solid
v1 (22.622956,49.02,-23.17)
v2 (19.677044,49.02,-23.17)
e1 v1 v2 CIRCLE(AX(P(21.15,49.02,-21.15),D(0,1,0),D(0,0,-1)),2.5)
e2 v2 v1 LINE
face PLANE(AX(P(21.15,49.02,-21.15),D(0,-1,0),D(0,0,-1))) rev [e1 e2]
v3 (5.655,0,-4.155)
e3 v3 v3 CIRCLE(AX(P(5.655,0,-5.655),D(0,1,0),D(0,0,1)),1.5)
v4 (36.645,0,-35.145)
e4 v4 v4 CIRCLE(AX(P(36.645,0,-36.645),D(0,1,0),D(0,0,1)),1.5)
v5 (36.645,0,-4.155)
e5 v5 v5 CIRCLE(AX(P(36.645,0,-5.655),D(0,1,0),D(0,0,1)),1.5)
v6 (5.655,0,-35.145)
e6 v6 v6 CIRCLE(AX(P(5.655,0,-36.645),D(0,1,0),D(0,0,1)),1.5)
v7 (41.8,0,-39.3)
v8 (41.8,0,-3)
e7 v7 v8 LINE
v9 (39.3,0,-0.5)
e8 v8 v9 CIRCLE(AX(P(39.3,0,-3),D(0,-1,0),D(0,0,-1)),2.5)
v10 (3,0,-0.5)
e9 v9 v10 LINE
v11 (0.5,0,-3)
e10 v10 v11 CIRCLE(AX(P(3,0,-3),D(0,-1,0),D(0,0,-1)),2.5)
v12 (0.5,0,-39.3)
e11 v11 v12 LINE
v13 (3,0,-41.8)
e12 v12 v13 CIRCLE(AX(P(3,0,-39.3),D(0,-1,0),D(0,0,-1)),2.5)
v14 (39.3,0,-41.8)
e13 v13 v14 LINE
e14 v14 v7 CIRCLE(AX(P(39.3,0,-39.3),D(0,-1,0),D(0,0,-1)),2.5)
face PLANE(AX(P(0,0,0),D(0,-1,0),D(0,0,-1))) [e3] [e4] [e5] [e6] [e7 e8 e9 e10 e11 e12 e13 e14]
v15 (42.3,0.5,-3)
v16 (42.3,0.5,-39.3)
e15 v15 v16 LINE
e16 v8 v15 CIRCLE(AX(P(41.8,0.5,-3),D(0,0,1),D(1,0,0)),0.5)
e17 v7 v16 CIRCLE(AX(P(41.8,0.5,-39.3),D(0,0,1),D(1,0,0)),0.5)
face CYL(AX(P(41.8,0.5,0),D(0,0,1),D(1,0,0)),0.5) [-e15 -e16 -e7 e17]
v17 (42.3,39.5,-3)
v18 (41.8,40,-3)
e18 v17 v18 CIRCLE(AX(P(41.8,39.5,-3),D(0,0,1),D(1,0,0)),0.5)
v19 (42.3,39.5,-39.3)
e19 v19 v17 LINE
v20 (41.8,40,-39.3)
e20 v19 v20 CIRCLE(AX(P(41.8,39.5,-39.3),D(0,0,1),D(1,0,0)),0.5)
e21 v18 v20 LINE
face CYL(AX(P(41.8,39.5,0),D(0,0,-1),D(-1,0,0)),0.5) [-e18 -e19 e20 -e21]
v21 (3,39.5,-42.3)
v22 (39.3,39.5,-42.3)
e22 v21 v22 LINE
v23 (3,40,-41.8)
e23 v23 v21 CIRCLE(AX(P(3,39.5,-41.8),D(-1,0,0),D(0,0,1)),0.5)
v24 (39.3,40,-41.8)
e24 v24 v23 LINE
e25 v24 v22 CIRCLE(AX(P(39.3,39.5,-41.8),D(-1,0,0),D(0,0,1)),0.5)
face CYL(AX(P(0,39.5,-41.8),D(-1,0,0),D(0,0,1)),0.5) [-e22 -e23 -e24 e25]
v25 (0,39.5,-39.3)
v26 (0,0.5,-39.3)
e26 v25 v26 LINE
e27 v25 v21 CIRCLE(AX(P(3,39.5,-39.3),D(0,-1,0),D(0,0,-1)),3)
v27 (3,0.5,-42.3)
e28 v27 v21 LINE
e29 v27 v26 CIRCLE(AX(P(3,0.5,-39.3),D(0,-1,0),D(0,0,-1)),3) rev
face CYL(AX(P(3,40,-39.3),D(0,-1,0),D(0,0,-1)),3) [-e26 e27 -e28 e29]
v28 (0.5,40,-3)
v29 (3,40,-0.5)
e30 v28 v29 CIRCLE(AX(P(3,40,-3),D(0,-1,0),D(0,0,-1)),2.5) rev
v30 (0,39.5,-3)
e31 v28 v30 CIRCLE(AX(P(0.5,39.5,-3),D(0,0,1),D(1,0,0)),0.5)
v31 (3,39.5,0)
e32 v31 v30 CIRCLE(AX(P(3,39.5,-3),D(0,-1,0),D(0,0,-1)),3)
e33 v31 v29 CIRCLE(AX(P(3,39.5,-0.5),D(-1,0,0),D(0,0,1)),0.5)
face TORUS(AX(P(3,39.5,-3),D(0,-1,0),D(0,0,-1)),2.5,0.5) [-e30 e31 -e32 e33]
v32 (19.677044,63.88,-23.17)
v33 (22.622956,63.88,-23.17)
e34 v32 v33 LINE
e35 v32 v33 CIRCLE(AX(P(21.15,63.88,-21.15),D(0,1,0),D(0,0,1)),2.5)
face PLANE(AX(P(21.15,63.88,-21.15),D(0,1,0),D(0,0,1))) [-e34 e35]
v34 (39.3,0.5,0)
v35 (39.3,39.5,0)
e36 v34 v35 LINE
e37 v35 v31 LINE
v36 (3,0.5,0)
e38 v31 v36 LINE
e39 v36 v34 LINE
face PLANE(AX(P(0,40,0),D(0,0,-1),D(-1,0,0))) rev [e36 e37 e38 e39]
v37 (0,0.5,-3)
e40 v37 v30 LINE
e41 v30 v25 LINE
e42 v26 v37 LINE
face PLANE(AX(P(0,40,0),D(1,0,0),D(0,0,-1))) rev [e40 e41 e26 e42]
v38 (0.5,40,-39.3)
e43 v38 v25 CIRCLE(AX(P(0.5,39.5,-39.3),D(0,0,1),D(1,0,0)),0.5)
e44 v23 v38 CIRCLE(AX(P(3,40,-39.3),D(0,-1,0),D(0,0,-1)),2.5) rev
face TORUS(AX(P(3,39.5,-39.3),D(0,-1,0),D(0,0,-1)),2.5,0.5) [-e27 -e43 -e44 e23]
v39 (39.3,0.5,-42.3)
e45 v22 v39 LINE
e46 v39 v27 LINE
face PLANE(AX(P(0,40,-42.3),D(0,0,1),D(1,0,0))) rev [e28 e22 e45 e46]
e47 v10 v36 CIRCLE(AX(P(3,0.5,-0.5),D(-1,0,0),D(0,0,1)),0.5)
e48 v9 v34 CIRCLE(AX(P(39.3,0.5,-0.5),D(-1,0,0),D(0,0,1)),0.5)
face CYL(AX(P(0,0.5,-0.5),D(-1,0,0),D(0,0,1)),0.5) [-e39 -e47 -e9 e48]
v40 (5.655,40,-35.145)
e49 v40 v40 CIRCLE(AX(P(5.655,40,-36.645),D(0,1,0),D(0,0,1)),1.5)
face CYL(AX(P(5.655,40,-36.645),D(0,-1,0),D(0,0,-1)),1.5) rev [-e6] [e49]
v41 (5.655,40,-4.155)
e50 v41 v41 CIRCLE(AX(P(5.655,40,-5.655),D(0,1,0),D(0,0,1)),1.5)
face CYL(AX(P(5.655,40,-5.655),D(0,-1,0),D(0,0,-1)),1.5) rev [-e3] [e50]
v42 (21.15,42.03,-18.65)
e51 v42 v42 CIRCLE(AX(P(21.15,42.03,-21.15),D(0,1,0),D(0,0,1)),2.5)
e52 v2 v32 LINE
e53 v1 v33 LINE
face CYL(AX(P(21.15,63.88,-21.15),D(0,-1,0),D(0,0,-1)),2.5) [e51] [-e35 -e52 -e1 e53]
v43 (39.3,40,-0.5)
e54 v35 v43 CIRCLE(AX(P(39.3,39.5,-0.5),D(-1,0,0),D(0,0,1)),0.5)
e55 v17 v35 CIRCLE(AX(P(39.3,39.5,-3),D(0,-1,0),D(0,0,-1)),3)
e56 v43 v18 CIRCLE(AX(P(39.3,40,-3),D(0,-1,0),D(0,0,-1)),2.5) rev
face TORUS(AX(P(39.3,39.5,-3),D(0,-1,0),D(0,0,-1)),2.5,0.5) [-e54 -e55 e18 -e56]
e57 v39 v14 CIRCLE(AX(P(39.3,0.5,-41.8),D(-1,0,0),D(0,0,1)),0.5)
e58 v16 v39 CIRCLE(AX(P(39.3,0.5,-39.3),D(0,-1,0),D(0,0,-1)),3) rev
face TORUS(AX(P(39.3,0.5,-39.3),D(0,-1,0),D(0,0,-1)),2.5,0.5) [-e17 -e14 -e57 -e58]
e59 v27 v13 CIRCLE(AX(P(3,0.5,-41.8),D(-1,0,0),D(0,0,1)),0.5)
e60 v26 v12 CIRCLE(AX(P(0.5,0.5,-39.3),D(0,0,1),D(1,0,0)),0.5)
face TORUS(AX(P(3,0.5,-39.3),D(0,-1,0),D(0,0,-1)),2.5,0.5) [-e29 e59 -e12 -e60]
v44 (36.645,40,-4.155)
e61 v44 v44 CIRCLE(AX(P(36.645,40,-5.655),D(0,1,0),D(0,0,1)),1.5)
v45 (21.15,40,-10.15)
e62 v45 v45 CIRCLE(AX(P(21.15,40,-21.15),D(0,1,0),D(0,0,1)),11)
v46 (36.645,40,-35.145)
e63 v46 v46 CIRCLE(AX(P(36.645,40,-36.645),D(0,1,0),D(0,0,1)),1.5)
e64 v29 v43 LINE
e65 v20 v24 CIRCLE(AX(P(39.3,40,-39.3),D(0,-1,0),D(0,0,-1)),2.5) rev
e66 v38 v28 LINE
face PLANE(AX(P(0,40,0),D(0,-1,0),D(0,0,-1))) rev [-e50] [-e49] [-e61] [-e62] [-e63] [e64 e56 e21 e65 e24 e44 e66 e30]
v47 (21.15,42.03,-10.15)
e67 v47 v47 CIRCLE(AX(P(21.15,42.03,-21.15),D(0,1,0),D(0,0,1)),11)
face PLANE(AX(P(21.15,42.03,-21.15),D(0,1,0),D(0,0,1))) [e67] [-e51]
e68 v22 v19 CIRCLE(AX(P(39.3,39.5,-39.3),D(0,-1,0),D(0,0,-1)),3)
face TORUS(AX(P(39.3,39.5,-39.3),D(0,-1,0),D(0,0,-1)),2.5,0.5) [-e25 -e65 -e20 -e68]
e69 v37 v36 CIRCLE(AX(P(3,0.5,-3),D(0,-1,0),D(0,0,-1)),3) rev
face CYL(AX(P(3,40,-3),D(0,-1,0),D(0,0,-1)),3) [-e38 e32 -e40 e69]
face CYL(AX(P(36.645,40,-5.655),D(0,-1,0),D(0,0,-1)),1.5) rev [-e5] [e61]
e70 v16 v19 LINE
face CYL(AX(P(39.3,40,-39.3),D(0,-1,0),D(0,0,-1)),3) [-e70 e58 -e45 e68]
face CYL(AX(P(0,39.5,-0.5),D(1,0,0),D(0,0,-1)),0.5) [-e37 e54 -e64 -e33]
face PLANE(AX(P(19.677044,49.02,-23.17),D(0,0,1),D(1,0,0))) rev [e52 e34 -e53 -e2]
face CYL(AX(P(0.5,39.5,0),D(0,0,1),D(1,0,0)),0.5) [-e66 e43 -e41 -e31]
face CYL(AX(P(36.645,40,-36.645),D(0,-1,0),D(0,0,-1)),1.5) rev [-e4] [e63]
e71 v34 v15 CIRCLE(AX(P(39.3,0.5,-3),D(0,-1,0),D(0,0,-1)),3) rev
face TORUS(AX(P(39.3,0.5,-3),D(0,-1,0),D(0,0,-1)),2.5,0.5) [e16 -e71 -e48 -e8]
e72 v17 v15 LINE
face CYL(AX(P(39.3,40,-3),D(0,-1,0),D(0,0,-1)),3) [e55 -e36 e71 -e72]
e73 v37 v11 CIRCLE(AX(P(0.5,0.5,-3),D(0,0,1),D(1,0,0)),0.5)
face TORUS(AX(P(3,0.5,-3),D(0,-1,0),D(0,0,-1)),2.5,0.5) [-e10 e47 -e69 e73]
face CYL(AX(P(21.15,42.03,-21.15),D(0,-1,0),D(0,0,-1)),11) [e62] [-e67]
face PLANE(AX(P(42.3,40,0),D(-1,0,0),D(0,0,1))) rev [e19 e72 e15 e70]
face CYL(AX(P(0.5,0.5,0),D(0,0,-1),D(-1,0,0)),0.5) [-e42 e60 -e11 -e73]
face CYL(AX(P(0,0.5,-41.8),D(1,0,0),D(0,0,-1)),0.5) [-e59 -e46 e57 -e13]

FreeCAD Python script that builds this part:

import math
import FreeCAD as App
import Part
import Sketcher
Q = App.Units.Quantity


def edges_at(feature, points):
    """Names of the edges that pass closest to the given points."""
    edges = feature.Shape.Edges
    near = lambda p: min(range(len(edges)), key=lambda i: edges[i].distToShape(Part.Vertex(*p))[0])
    return sorted({f"Edge{near(p) + 1}" for p in points})


def add_polygon(sketch, points):
    """Adds a closed chain of lines whose ends are joined by coincident constraints."""
    first, n = sketch.GeometryCount, len(points)
    for a, b in zip(points, points[1:] + points[:1]):
        sketch.addGeometry(Part.LineSegment(App.Vector(*a, 0), App.Vector(*b, 0)), False)
    for i in range(n):
        sketch.addConstraint(Sketcher.Constraint("Coincident", first + i, 2, first + (i + 1) % n, 1))

doc = App.newDocument("Part")
body = doc.addObject("PartDesign::Body", "Body")

# Sketch on XZ plane
sketch1 = doc.addObject("Sketcher::SketchObject", "Sketch")
body.addObject(sketch1)
sketch1.AttachmentSupport = (doc.XZ_Plane, [""])
sketch1.MapMode = "FlatFace"
add_polygon(sketch1, [(0, -42.3), (0, 0), (42.3, 0), (42.3, -42.3)])  # lines 0-3
sketch1.addGeometry(Part.Circle(App.Vector(5.655, -5.655, 0), App.Vector(0, 0, 1), 1.5), False)  # 4
sketch1.addGeometry(Part.Circle(App.Vector(36.645, -5.655, 0), App.Vector(0, 0, 1), 1.5), False)  # 5
sketch1.addGeometry(Part.Circle(App.Vector(5.655, -36.645, 0), App.Vector(0, 0, 1), 1.5), False)  # 6
sketch1.addGeometry(Part.Circle(App.Vector(36.645, -36.645, 0), App.Vector(0, 0, 1), 1.5), False)  # 7
sketch1.addConstraint([
    Sketcher.Constraint("Vertical", 0),
    Sketcher.Constraint("Horizontal", 1),
    Sketcher.Constraint("Vertical", 2),
    Sketcher.Constraint("Horizontal", 3),
    Sketcher.Constraint("Coincident", 0, 2, -1, 1),
    Sketcher.Constraint("Equal", 4, 5),
    Sketcher.Constraint("Equal", 5, 6),
    Sketcher.Constraint("Equal", 6, 7),
    Sketcher.Constraint("Horizontal", 4, 3, 5, 3),
    Sketcher.Constraint("Horizontal", 6, 3, 7, 3),
    Sketcher.Constraint("Vertical", 4, 3, 6, 3),
    Sketcher.Constraint("Vertical", 5, 3, 7, 3),
    Sketcher.Constraint("Equal", 3, 0),
    Sketcher.Constraint("Diameter", 4, Q("3 mm")),
    Sketcher.Constraint("DistanceX", 1, 1, 1, 2, Q("42.3 mm")),
    Sketcher.Constraint("DistanceX", 4, 3, 5, 3, Q("30.99 mm")),
    Sketcher.Constraint("DistanceY", 6, 3, 4, 3, Q("30.99 mm")),
    Sketcher.Constraint("DistanceX", -1, 1, 4, 3, Q("5.655 mm")),
    Sketcher.Constraint("DistanceY", 4, 3, -1, 1, Q("5.655 mm")),
])
pad1 = doc.addObject("PartDesign::Pad", "Pad")
body.addObject(pad1)
pad1.Profile = sketch1
pad1.Length = 40
pad1.Reversed = True

# Sketch on XZ plane
sketch2 = doc.addObject("Sketcher::SketchObject", "Sketch001")
body.addObject(sketch2)
sketch2.AttachmentSupport = (doc.XZ_Plane, [""])
sketch2.MapMode = "FlatFace"
sketch2.AttachmentOffset = App.Placement(App.Vector(0, 0, -40), App.Rotation())
sketch2.addGeometry(Part.Circle(App.Vector(21.15, -21.15, 0), App.Vector(0, 0, 1), 11), False)
sketch2.addConstraint([
    Sketcher.Constraint("Diameter", 0, Q("22 mm")),
    Sketcher.Constraint("DistanceX", -1, 1, 0, 3, Q("21.15 mm")),
    Sketcher.Constraint("DistanceY", 0, 3, -1, 1, Q("21.15 mm")),
])
pad2 = doc.addObject("PartDesign::Pad", "Pad001")
body.addObject(pad2)
pad2.Profile = sketch2
pad2.Length = 2.03
pad2.Reversed = True

# Sketch on XZ plane
sketch3 = doc.addObject("Sketcher::SketchObject", "Sketch002")
body.addObject(sketch3)
sketch3.AttachmentSupport = (doc.XZ_Plane, [""])
sketch3.MapMode = "FlatFace"
sketch3.AttachmentOffset = App.Placement(App.Vector(0, 0, -42.03), App.Rotation())
sketch3.addGeometry(Part.Circle(App.Vector(21.15, -21.15, 0), App.Vector(0, 0, 1), 2.5), False)
sketch3.addConstraint([
    Sketcher.Constraint("Diameter", 0, Q("5 mm")),
    Sketcher.Constraint("DistanceX", -1, 1, 0, 3, Q("21.15 mm")),
    Sketcher.Constraint("DistanceY", 0, 3, -1, 1, Q("21.15 mm")),
])
pad3 = doc.addObject("PartDesign::Pad", "Pad002")
body.addObject(pad3)
pad3.Profile = sketch3
pad3.Length = 21.85
pad3.Reversed = True

# Sketch on XZ plane
sketch4 = doc.addObject("Sketcher::SketchObject", "Sketch003")
body.addObject(sketch4)
sketch4.AttachmentSupport = (doc.XZ_Plane, [""])
sketch4.MapMode = "FlatFace"
sketch4.AttachmentOffset = App.Placement(App.Vector(0, 0, -49.02), App.Rotation())
sketch4.addGeometry([
    Part.LineSegment(App.Vector(19.677044, -23.17, 0), App.Vector(22.622956, -23.17, 0)),
    Part.ArcOfCircle(Part.Circle(App.Vector(21.15, -21.15, 0), App.Vector(0, 0, 1), 2.5), math.radians(-126.099016), math.radians(-53.900984)),
], False)
sketch4.addConstraint([
    Sketcher.Constraint("Coincident", 0, 1, 1, 1),
    Sketcher.Constraint("Coincident", 1, 2, 0, 2),
    Sketcher.Constraint("Horizontal", 0),
    Sketcher.Constraint("Radius", 1, Q("2.5 mm")),
    Sketcher.Constraint("DistanceX", -1, 1, 1, 3, Q("21.15 mm")),
    Sketcher.Constraint("DistanceY", 1, 3, -1, 1, Q("21.15 mm")),
    Sketcher.Constraint("DistanceY", 0, 1, -1, 1, Q("23.17 mm")),
])
pocket1 = doc.addObject("PartDesign::Pocket", "Pocket")
body.addObject(pocket1)
pocket1.Profile = sketch4
pocket1.Length = 14.86
doc.recompute()

fillet = doc.addObject("PartDesign::Fillet", "Fillet")
body.addObject(fillet)
fillet.Base = (pocket1, edges_at(pocket1, [
    (0, 20, -42.3),
    (42.3, 20, -42.3),
    (42.3, 20, 0),
    (0, 20, 0),
]))
fillet.Radius = 3
doc.recompute()

fillet2 = doc.addObject("PartDesign::Fillet", "Fillet001")
body.addObject(fillet2)
fillet2.Base = (fillet, edges_at(fillet, [
    (0, 0, -21.15),
    (0, 40, -21.15),
    (21.15, 0, -42.3),
    (42.3, 0, -21.15),
    (21.15, 0, 0),
    (0.879, 0, -0.879),
    (41.421, 0, -0.879),
    (41.421, 0, -41.421),
    (0.879, 0, -41.421),
    (21.15, 40, -42.3),
    (21.15, 40, 0),
    (42.3, 40, -21.15),
    (0.879, 40, -0.879),
    (41.421, 40, -0.879),
    (41.421, 40, -41.421),
    (0.879, 40, -41.421),
]))
fillet2.Radius = 0.5

doc.recompute()
